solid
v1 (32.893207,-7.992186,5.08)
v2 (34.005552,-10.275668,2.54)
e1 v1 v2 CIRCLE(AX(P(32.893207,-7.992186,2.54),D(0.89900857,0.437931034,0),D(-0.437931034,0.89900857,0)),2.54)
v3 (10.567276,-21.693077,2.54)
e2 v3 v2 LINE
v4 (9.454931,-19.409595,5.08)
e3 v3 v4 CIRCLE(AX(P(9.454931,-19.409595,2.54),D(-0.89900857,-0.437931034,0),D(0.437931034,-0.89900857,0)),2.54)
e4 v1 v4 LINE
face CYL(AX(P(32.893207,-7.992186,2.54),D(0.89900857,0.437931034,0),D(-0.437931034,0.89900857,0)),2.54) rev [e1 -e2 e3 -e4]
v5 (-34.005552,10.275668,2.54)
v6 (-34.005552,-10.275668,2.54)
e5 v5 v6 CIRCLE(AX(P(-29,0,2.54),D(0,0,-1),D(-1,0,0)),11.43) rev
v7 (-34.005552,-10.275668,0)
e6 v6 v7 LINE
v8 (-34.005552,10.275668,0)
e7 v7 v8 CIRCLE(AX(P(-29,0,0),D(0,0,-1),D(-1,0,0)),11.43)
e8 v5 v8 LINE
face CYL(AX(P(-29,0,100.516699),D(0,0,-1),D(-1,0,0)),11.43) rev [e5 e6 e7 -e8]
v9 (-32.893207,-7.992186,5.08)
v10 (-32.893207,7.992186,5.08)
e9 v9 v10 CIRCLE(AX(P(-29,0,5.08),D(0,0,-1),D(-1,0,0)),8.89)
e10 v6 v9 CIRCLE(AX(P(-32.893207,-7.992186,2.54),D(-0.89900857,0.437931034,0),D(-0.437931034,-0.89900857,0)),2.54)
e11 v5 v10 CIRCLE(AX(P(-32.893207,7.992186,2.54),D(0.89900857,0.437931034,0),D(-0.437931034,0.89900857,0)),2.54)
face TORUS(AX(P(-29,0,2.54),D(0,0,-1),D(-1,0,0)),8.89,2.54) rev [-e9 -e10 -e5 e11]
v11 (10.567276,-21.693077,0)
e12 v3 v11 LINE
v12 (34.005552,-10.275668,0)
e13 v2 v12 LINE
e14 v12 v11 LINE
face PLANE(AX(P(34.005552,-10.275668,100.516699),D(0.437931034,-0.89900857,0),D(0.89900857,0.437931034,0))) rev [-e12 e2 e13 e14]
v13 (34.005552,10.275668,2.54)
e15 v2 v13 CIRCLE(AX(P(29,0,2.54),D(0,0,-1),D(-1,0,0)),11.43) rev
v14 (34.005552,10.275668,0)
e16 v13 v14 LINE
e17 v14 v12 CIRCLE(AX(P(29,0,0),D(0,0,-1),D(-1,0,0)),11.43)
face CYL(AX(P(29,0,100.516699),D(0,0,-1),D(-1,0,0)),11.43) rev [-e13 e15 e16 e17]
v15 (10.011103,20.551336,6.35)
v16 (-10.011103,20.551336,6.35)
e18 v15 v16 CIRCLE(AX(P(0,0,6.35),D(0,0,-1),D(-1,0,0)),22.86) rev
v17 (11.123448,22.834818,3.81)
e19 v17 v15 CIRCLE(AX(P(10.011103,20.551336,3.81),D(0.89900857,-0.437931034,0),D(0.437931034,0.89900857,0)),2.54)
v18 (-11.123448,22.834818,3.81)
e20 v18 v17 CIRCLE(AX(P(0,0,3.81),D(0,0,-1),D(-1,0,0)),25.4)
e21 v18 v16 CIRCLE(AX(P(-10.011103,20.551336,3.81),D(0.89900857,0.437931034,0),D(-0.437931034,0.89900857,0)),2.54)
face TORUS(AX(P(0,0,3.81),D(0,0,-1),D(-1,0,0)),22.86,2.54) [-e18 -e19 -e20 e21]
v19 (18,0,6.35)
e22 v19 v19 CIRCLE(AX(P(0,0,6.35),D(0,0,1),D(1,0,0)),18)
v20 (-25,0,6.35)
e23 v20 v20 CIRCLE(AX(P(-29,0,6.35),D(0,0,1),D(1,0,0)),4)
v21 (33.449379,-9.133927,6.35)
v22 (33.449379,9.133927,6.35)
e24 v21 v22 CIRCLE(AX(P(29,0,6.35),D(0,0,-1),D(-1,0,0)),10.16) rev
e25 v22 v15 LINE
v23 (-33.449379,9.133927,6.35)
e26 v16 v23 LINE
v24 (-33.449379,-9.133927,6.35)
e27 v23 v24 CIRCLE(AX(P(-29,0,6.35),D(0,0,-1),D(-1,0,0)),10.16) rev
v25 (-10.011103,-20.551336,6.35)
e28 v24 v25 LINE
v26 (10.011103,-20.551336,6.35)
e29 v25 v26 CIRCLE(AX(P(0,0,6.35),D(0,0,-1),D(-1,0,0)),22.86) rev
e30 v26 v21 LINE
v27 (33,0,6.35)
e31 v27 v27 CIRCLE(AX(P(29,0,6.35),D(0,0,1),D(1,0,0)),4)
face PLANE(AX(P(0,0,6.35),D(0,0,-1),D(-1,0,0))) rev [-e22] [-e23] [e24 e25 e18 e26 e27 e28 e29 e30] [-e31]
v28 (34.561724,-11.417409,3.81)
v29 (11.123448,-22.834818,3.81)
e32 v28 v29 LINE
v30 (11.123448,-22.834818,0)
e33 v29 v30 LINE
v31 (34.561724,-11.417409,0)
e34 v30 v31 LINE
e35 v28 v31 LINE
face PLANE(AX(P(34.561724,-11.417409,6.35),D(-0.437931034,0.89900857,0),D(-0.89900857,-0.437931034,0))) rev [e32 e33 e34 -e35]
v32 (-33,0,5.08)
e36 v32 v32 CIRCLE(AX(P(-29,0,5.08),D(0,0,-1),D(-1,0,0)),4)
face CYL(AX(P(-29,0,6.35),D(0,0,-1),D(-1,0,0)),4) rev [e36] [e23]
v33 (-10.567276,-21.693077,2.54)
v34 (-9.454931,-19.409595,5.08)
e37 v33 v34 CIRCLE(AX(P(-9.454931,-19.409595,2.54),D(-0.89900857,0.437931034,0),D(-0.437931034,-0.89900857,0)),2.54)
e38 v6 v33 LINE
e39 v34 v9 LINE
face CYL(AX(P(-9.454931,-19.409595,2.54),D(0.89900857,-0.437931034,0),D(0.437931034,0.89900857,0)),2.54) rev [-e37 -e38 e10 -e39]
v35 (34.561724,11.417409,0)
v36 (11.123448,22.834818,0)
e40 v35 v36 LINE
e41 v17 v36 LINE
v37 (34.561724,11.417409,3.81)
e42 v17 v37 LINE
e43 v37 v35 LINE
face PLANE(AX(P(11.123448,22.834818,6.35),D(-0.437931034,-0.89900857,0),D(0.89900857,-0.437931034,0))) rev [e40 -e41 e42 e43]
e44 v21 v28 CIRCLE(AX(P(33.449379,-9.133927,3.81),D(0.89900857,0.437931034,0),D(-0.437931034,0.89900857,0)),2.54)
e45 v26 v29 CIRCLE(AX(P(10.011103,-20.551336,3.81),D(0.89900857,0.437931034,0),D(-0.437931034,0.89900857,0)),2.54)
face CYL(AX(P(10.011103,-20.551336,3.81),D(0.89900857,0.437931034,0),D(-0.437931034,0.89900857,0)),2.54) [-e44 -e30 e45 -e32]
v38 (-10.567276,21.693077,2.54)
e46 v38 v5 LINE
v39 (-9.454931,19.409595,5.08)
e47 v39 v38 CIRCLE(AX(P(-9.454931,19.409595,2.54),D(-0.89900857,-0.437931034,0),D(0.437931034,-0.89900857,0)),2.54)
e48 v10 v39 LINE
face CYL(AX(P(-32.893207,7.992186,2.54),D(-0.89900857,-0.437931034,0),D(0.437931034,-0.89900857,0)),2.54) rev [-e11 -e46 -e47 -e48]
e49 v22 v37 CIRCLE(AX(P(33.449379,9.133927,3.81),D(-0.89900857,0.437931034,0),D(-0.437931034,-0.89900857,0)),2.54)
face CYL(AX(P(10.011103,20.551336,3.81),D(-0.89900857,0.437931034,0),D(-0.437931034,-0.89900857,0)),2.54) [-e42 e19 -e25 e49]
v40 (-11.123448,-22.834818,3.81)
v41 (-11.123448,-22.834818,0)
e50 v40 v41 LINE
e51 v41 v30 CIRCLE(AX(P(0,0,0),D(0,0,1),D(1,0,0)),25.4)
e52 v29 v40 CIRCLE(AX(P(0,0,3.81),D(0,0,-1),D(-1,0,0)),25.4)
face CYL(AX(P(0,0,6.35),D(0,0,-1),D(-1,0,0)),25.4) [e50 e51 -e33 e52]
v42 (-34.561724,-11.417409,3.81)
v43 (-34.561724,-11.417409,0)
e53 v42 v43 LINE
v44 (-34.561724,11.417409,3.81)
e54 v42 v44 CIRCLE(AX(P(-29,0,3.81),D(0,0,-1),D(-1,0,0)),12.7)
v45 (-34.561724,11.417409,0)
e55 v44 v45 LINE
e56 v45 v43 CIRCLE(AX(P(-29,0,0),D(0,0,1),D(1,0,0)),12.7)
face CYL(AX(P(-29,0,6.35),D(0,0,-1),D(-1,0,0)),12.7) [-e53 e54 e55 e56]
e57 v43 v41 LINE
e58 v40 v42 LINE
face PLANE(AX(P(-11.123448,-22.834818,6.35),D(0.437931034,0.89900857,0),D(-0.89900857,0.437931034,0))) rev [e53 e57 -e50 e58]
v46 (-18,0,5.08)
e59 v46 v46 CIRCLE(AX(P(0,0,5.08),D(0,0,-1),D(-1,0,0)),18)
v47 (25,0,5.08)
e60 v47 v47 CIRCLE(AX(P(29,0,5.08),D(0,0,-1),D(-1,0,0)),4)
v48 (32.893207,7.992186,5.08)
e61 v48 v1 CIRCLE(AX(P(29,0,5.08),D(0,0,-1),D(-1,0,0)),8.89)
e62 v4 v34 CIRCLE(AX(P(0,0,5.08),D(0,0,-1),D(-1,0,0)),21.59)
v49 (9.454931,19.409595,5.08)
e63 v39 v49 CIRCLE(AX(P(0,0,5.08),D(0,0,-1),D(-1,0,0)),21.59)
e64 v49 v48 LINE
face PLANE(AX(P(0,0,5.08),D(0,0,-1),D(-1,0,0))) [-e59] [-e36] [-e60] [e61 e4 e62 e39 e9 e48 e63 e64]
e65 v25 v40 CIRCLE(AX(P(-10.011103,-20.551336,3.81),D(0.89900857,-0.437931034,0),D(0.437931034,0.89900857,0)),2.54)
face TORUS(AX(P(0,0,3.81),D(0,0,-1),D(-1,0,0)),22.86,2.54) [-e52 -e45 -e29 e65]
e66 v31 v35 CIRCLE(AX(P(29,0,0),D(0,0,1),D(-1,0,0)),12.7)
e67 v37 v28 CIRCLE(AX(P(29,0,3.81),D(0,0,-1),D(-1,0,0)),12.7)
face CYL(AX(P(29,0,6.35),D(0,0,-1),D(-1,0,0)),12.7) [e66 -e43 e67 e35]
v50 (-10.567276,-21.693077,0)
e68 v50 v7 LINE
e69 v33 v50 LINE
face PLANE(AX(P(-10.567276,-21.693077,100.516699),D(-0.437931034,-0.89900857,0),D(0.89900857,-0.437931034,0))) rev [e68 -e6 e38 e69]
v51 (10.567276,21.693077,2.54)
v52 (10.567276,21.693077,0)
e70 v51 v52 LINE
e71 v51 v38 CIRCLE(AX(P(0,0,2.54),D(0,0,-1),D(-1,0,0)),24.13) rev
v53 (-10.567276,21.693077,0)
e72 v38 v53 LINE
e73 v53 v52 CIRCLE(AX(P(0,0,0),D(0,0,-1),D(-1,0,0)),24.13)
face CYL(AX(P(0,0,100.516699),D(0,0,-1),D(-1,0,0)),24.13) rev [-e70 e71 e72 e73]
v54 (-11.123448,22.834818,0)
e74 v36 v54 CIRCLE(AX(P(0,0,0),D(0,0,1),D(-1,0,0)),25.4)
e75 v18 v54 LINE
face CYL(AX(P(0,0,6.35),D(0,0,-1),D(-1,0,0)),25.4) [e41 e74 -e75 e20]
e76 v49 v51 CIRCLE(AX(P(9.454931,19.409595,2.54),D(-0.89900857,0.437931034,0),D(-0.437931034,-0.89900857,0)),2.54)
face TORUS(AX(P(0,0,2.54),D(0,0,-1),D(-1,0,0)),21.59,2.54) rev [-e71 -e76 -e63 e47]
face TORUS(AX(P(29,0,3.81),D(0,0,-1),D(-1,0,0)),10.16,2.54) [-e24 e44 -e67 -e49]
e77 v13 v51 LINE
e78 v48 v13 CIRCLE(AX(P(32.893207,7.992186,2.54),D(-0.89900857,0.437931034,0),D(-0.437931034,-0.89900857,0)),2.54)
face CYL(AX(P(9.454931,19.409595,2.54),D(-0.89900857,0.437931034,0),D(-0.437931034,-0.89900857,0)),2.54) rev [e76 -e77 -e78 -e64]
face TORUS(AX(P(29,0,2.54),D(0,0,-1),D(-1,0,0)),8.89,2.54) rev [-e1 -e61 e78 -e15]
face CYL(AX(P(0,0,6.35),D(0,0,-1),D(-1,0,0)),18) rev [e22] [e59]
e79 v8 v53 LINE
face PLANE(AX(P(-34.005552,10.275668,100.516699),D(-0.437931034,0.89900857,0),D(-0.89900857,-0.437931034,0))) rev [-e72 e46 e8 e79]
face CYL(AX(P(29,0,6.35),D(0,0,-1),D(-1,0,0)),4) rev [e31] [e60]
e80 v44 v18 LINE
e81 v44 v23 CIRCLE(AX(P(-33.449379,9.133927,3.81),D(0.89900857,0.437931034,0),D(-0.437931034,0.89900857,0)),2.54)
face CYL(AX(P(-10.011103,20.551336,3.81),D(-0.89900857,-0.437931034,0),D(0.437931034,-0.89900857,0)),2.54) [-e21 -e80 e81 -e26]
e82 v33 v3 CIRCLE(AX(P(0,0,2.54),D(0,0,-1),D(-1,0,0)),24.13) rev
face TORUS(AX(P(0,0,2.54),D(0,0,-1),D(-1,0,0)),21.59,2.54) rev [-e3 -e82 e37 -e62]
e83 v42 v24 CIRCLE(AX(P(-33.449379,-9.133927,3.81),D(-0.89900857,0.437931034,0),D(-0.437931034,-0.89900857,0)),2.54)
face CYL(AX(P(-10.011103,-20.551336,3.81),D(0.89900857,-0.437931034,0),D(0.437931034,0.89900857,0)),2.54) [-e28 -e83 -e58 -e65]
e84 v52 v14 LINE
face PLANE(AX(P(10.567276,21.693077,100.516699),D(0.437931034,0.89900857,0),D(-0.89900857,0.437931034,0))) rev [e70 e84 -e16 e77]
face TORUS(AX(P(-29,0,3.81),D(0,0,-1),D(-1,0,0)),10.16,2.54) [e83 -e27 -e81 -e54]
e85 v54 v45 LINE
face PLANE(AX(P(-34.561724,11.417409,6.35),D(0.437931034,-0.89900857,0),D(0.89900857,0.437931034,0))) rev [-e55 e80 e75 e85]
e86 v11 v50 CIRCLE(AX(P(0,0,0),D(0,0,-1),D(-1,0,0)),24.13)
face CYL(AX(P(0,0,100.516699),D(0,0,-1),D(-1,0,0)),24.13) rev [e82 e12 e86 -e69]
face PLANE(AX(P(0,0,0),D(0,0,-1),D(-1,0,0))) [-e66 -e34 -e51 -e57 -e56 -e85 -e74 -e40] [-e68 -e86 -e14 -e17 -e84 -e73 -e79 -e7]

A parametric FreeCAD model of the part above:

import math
import FreeCAD as App
import Part
import Sketcher
Q = App.Units.Quantity


def edges_at(feature, points):
    """Names of the edges that pass closest to the given points."""
    edges = feature.Shape.Edges
    near = lambda p: min(range(len(edges)), key=lambda i: edges[i].distToShape(Part.Vertex(*p))[0])
    return sorted({f"Edge{near(p) + 1}" for p in points})

doc = App.newDocument("Part")
body = doc.addObject("PartDesign::Body", "Body")

# Sketch on XY plane
sketch1 = doc.addObject("Sketcher::SketchObject", "Sketch")
body.addObject(sketch1)
sketch1.AttachmentSupport = (doc.XY_Plane, [""])
sketch1.MapMode = "FlatFace"
sketch1.addGeometry([
    Part.LineSegment(App.Vector(-11.123448, 22.834818, 0), App.Vector(-34.561724, 11.417409, 0)),  # 0
    Part.ArcOfCircle(Part.Circle(App.Vector(-29, 0, 0), App.Vector(0, 0, 1), 12.7), math.radians(115.971947), math.radians(244.028053)),  # 1
    Part.LineSegment(App.Vector(-34.561724, -11.417409, 0), App.Vector(-11.123448, -22.834818, 0)),  # 2
    Part.ArcOfCircle(Part.Circle(App.Vector(0, 0, 0), App.Vector(0, 0, 1), 25.4), math.radians(-115.971947), math.radians(-64.028053)),  # 3
    Part.LineSegment(App.Vector(11.123448, -22.834818, 0), App.Vector(34.561724, -11.417409, 0)),  # 4
    Part.ArcOfCircle(Part.Circle(App.Vector(29, 0, 0), App.Vector(0, 0, 1), 12.7), math.radians(-64.028053), math.radians(64.028053)),  # 5
    Part.LineSegment(App.Vector(34.561724, 11.417409, 0), App.Vector(11.123448, 22.834818, 0)),  # 6
    Part.ArcOfCircle(Part.Circle(App.Vector(0, 0, 0), App.Vector(0, 0, 1), 25.4), math.radians(64.028053), math.radians(115.971947)),  # 7
    Part.Circle(App.Vector(29, 0, 0), App.Vector(0, 0, 1), 4),  # 8
    Part.Circle(App.Vector(0, 0, 0), App.Vector(0, 0, 1), 18),  # 9
    Part.Circle(App.Vector(-29, 0, 0), App.Vector(0, 0, 1), 4),  # 10
], False)
sketch1.addConstraint([
    Sketcher.Constraint("Tangent", 0, 2, 1, 1),
    Sketcher.Constraint("Tangent", 1, 2, 2, 1),
    Sketcher.Constraint("Tangent", 2, 2, 3, 1),
    Sketcher.Constraint("Tangent", 3, 2, 4, 1),
    Sketcher.Constraint("Tangent", 4, 2, 5, 1),
    Sketcher.Constraint("Tangent", 5, 2, 6, 1),
    Sketcher.Constraint("Tangent", 6, 2, 7, 1),
    Sketcher.Constraint("Tangent", 7, 2, 0, 1),
    Sketcher.Constraint("Coincident", 3, 3, -1, 1),
    Sketcher.Constraint("Coincident", 7, 3, -1, 1),
    Sketcher.Constraint("Coincident", 9, 3, -1, 1),
    Sketcher.Constraint("Coincident", 8, 3, 5, 3),
    Sketcher.Constraint("Coincident", 10, 3, 1, 3),
    Sketcher.Constraint("Equal", 1, 5),
    Sketcher.Constraint("Equal", 3, 7),
    Sketcher.Constraint("Equal", 8, 10),
    Sketcher.Constraint("Symmetric", 1, 3, 5, 3, -1, 1),
    Sketcher.Constraint("PointOnObject", 1, 3, -1),
    Sketcher.Constraint("Radius", 3, Q("1 in")),
    Sketcher.Constraint("Radius", 1, Q("0.5 in")),
    Sketcher.Constraint("Diameter", 8, Q("8 mm")),
    Sketcher.Constraint("Diameter", 9, Q("36 mm")),
    Sketcher.Constraint("DistanceX", 1, 3, -1, 1, Q("29 mm")),
])
pad1 = doc.addObject("PartDesign::Pad", "Pad")
body.addObject(pad1)
pad1.Profile = sketch1
pad1.Length = Q("0.25 in")

# Sketch on XY plane
sketch2 = doc.addObject("Sketcher::SketchObject", "Sketch001")
body.addObject(sketch2)
sketch2.AttachmentSupport = (doc.XY_Plane, [""])
sketch2.MapMode = "FlatFace"
sketch2.addGeometry([
    Part.LineSegment(App.Vector(-34.005552, 10.275668, 0), App.Vector(-10.567276, 21.693077, 0)),  # 0
    Part.ArcOfCircle(Part.Circle(App.Vector(0, 0, 0), App.Vector(0, 0, 1), 24.13), math.radians(64.028053), math.radians(115.971947)),  # 1
    Part.LineSegment(App.Vector(10.567276, 21.693077, 0), App.Vector(34.005552, 10.275668, 0)),  # 2
    Part.ArcOfCircle(Part.Circle(App.Vector(29, 0, 0), App.Vector(0, 0, 1), 11.43), math.radians(-64.028053), math.radians(64.028053)),  # 3
    Part.LineSegment(App.Vector(34.005552, -10.275668, 0), App.Vector(10.567276, -21.693077, 0)),  # 4
    Part.ArcOfCircle(Part.Circle(App.Vector(0, 0, 0), App.Vector(0, 0, 1), 24.13), math.radians(-115.971947), math.radians(-64.028053)),  # 5
    Part.LineSegment(App.Vector(-10.567276, -21.693077, 0), App.Vector(-34.005552, -10.275668, 0)),  # 6
    Part.ArcOfCircle(Part.Circle(App.Vector(-29, 0, 0), App.Vector(0, 0, 1), 11.43), math.radians(115.971947), math.radians(244.028053)),  # 7
], False)
sketch2.addConstraint([
    Sketcher.Constraint("Tangent", 0, 2, 1, 2),
    Sketcher.Constraint("Tangent", 1, 1, 2, 1),
    Sketcher.Constraint("Tangent", 2, 2, 3, 2),
    Sketcher.Constraint("Tangent", 3, 1, 4, 1),
    Sketcher.Constraint("Tangent", 4, 2, 5, 2),
    Sketcher.Constraint("Tangent", 5, 1, 6, 1),
    Sketcher.Constraint("Tangent", 6, 2, 7, 2),
    Sketcher.Constraint("Tangent", 7, 1, 0, 1),
    Sketcher.Constraint("Coincident", 1, 3, -1, 1),
    Sketcher.Constraint("Coincident", 5, 3, -1, 1),
    Sketcher.Constraint("Equal", 1, 5),
    Sketcher.Constraint("Equal", 3, 7),
    Sketcher.Constraint("Symmetric", 3, 3, 7, 3, -1, 1),
    Sketcher.Constraint("PointOnObject", 3, 3, -1),
    Sketcher.Constraint("Radius", 1, Q("0.95 in")),
    Sketcher.Constraint("Radius", 3, Q("0.45 in")),
    Sketcher.Constraint("DistanceX", -1, 1, 3, 3, Q("29 mm")),
])
pocket1 = doc.addObject("PartDesign::Pocket", "Pocket")
body.addObject(pocket1)
pocket1.Profile = sketch2
pocket1.Length = Q("0.2 in")
pocket1.Reversed = True
doc.recompute()

fillet = doc.addObject("PartDesign::Fillet", "Fillet")
body.addObject(fillet)
fillet.Base = (pocket1, edges_at(pocket1, [
    (-41.7, 0, 6.35),
    (-22.843, -17.126, 6.35),
    (0, -25.4, 6.35),
    (22.843, -17.126, 6.35),
    (41.7, 0, 6.35),
    (22.843, 17.126, 6.35),
    (0, 25.4, 6.35),
    (0, 24.13, 5.08),
    (-22.286, 15.984, 5.08),
    (-40.43, 0, 5.08),
    (-22.286, -15.984, 5.08),
    (0, -24.13, 5.08),
    (22.286, -15.984, 5.08),
    (40.43, 0, 5.08),
    (22.286, 15.984, 5.08),
    (-22.843, 17.126, 6.35),
]))
fillet.Radius = Q("0.1 in")

doc.recompute()
